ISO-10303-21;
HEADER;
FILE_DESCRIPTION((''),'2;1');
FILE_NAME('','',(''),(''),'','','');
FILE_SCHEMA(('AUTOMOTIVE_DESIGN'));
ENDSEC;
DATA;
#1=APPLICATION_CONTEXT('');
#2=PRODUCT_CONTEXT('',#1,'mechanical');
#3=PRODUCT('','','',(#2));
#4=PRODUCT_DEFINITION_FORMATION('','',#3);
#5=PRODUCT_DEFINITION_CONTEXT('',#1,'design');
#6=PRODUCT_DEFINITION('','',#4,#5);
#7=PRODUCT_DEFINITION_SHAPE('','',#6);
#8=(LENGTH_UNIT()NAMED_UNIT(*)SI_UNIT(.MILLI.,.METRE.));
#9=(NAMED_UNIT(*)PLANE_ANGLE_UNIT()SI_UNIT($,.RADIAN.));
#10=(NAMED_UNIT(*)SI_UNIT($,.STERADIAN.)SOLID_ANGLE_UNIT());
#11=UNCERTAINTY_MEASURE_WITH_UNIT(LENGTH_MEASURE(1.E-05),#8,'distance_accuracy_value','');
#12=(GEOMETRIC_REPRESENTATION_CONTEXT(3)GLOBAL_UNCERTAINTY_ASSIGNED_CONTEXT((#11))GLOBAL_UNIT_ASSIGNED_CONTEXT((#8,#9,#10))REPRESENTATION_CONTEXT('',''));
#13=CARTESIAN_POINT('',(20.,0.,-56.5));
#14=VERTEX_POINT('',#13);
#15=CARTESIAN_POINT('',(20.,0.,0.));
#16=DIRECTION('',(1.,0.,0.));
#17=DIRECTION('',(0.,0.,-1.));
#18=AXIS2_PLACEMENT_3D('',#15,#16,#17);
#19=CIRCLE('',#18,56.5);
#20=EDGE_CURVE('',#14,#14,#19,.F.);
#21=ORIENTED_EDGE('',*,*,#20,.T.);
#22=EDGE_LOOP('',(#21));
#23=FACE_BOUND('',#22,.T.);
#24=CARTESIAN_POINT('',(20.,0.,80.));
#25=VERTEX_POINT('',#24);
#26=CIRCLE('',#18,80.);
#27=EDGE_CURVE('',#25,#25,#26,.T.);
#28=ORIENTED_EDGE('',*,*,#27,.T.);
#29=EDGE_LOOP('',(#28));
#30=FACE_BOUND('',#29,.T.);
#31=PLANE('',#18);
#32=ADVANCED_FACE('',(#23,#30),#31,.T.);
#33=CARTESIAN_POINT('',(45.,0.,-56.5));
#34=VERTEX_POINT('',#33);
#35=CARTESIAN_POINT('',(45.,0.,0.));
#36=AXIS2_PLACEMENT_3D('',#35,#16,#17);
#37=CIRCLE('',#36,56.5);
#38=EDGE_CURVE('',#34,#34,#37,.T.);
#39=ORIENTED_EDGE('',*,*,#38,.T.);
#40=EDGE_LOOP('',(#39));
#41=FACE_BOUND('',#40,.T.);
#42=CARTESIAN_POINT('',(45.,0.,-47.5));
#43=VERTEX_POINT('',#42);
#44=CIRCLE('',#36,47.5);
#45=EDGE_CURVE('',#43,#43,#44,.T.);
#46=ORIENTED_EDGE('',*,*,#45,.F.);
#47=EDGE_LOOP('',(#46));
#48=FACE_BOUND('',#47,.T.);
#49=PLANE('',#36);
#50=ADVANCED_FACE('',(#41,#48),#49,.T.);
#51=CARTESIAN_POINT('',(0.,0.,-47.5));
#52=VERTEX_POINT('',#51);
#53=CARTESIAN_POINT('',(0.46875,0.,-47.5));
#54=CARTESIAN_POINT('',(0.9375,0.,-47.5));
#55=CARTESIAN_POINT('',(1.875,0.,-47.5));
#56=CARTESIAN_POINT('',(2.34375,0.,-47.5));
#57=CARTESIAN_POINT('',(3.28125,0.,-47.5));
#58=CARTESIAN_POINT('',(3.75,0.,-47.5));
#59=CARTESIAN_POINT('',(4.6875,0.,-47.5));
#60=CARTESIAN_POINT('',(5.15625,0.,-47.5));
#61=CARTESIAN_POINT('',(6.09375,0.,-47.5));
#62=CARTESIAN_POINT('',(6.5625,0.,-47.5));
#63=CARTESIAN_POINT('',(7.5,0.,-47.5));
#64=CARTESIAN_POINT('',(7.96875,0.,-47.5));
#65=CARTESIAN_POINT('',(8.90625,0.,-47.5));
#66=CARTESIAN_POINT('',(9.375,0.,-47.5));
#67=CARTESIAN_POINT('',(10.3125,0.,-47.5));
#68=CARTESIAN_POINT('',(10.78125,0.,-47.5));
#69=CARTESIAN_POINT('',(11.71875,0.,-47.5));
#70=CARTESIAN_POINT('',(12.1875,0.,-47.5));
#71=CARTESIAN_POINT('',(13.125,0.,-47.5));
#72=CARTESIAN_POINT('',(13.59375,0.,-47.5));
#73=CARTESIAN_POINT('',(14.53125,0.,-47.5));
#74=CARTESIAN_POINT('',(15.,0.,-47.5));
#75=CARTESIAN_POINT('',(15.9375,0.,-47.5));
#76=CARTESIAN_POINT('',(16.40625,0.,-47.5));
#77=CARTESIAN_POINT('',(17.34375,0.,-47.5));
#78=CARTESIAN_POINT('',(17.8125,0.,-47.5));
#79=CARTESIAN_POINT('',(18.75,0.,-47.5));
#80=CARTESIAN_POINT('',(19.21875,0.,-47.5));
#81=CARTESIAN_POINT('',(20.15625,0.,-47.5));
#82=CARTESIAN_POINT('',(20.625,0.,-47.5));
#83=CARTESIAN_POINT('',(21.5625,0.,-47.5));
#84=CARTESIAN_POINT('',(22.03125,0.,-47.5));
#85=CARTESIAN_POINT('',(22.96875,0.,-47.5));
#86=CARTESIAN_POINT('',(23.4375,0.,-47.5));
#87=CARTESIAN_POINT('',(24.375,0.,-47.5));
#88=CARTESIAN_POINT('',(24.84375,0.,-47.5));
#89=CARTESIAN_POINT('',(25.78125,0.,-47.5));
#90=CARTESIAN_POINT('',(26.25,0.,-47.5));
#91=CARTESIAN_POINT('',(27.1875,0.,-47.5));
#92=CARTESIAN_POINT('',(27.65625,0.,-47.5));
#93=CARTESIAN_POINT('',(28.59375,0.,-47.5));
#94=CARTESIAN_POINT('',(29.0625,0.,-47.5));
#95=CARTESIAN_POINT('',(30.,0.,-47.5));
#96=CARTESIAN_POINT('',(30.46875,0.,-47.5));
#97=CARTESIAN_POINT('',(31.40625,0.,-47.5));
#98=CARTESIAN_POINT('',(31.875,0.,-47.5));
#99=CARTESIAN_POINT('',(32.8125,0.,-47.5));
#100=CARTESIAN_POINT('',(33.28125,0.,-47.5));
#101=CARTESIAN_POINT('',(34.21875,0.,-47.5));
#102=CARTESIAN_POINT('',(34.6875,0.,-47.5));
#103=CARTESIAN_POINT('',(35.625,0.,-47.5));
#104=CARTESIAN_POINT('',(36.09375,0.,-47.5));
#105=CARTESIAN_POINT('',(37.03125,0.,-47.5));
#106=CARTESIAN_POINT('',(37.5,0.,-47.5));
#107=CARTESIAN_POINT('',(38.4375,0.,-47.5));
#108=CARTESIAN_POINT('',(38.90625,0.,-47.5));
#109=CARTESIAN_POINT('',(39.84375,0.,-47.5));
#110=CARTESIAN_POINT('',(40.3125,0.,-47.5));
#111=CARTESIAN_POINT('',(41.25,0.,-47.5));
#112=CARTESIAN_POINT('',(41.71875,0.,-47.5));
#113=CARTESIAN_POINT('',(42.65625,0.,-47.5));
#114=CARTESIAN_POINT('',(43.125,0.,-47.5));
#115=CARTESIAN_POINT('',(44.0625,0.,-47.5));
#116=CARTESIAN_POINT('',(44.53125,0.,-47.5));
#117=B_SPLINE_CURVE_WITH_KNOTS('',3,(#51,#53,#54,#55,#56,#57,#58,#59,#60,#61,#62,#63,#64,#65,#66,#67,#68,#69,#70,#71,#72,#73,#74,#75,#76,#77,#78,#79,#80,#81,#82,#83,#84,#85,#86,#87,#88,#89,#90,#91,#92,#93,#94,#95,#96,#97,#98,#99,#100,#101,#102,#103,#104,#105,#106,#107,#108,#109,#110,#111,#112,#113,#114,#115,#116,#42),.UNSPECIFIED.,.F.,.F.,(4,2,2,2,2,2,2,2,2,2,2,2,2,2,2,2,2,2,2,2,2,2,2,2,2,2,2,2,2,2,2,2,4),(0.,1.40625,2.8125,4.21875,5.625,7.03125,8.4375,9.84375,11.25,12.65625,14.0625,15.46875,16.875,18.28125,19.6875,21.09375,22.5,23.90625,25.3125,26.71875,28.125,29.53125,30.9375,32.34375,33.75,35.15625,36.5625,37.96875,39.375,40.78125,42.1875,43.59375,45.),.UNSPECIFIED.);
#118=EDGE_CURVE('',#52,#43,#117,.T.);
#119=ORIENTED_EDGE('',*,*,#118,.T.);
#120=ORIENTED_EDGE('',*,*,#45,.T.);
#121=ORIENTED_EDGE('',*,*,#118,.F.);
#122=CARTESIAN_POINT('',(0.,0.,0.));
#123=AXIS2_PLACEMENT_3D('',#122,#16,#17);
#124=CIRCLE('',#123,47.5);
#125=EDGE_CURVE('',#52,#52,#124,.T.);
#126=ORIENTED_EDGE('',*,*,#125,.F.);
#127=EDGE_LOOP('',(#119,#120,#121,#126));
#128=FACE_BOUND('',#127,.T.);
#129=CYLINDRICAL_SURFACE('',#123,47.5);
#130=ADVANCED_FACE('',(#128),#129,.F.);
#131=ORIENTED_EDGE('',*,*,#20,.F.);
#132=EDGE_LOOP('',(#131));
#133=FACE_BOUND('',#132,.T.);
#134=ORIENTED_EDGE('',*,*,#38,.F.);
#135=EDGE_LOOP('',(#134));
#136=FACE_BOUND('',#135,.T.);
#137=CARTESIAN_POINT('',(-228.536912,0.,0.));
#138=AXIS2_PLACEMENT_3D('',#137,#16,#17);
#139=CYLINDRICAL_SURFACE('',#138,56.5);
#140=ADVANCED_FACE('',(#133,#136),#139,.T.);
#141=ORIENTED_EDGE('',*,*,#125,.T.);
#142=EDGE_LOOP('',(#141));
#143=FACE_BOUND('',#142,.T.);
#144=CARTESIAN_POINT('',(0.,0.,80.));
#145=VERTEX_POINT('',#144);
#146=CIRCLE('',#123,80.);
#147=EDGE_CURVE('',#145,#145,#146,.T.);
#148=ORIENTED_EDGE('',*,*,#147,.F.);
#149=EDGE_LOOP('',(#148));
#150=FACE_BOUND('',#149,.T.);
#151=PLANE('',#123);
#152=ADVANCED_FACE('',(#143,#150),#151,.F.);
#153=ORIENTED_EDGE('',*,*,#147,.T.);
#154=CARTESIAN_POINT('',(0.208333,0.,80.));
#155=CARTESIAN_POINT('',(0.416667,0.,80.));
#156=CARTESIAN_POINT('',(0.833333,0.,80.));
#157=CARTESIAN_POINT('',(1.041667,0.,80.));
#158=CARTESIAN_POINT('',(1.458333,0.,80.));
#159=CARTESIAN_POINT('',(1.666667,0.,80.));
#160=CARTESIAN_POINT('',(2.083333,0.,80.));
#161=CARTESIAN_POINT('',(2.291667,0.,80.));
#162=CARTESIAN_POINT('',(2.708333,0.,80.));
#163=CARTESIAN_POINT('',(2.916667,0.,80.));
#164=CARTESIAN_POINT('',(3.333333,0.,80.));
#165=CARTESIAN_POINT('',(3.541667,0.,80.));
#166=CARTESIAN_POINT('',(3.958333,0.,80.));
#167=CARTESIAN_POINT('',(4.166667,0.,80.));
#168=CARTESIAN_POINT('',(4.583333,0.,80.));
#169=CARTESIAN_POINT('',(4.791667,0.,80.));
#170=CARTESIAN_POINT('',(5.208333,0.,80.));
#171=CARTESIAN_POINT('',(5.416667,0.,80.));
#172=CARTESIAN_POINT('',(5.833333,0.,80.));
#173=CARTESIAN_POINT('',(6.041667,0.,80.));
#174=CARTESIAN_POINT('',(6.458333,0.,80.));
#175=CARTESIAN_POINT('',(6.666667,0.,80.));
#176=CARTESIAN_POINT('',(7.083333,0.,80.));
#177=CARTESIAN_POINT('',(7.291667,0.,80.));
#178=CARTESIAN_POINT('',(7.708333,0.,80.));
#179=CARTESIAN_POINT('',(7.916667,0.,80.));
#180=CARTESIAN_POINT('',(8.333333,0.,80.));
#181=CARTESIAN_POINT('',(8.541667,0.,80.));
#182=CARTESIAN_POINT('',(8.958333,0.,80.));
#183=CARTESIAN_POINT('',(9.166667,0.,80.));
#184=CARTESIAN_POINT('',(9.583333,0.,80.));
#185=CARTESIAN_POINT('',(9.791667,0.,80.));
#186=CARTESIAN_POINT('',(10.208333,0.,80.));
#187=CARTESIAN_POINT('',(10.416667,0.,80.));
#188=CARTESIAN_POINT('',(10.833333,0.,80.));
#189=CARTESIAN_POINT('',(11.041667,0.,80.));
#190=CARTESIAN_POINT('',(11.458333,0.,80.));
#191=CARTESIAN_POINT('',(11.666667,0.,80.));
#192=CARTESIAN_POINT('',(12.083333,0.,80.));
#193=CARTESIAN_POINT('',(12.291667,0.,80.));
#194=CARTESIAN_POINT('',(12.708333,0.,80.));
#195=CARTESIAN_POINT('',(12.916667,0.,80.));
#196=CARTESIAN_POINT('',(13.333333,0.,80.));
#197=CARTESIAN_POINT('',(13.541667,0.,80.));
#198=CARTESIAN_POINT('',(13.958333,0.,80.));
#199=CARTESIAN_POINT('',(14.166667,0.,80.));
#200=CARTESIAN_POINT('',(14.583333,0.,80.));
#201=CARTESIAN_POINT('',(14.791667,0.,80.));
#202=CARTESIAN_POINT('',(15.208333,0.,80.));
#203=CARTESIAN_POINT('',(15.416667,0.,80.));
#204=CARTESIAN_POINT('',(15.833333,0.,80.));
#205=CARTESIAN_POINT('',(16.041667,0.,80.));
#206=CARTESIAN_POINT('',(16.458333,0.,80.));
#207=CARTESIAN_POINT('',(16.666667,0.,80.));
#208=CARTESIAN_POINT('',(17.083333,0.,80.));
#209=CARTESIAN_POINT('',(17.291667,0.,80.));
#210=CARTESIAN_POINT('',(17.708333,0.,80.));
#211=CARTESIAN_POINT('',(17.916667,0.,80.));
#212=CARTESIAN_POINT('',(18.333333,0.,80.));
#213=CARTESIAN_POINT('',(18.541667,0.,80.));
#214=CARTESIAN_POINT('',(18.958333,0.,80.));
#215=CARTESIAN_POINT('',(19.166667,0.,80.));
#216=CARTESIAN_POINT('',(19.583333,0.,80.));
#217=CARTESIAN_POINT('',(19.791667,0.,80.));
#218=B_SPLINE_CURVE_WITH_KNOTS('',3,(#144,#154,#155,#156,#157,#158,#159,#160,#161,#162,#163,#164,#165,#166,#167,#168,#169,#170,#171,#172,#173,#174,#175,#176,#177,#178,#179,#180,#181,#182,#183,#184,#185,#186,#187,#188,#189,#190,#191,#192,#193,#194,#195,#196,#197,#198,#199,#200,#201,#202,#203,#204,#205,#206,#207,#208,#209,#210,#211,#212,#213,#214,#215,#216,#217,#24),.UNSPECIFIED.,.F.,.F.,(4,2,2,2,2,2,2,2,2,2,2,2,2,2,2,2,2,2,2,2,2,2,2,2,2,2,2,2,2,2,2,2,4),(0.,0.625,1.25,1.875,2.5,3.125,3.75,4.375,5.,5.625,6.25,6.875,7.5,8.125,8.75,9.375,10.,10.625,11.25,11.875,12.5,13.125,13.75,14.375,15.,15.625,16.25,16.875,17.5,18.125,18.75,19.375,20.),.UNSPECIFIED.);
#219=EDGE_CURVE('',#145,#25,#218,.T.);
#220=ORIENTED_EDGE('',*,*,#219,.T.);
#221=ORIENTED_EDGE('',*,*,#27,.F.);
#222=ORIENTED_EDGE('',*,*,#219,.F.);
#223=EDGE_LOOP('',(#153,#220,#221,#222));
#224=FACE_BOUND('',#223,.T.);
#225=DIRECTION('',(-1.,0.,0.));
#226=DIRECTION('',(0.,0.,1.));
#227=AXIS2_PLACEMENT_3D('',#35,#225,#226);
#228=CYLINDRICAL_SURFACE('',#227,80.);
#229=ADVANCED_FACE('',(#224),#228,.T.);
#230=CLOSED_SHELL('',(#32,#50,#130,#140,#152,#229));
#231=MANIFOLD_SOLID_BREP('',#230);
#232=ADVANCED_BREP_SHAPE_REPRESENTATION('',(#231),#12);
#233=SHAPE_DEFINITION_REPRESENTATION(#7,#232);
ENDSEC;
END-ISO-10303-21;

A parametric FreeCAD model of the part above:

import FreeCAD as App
import Part
import Sketcher
Q = App.Units.Quantity


def add_polygon(sketch, points):
    """Adds a closed chain of lines whose ends are joined by coincident constraints."""
    first, n = sketch.GeometryCount, len(points)
    for a, b in zip(points, points[1:] + points[:1]):
        sketch.addGeometry(Part.LineSegment(App.Vector(*a, 0), App.Vector(*b, 0)), False)
    for i in range(n):
        sketch.addConstraint(Sketcher.Constraint("Coincident", first + i, 2, first + (i + 1) % n, 1))

doc = App.newDocument("Part")
body = doc.addObject("PartDesign::Body", "Body")

# Sketch on YZ plane
sketch1 = body.newObject("Sketcher::SketchObject", "Sketch")
sketch1.AttachmentSupport = (doc.getObject("YZ_Plane"), [""])
sketch1.MapMode = "FlatFace"
sketch1.addGeometry(Part.Circle(App.Vector(0, 0, 0), App.Vector(0, 0, 1), 80), False)
sketch1.addConstraint(Sketcher.Constraint("Coincident", 0, 3, -1, 1))
sketch1.addConstraint(Sketcher.Constraint("Diameter", 0, Q("160 mm")))
pad1 = body.newObject("PartDesign::Pad", "Pad")
pad1.Profile = sketch1
pad1.Length = 45

# Sketch on YZ plane
sketch2 = body.newObject("Sketcher::SketchObject", "Sketch001")
sketch2.AttachmentSupport = (doc.getObject("YZ_Plane"), [""])
sketch2.MapMode = "FlatFace"
sketch2.AttachmentOffset = App.Placement(App.Vector(0, 0, 45), App.Rotation())
sketch2.addGeometry(Part.Circle(App.Vector(0, 0, 0), App.Vector(0, 0, 1), 48), False)
sketch2.addConstraint(Sketcher.Constraint("Coincident", 0, 3, -1, 1))
sketch2.addConstraint(Sketcher.Constraint("Diameter", 0, Q("95 mm")))
pocket1 = body.newObject("PartDesign::Pocket", "Pocket")
pocket1.Profile = sketch2
pocket1.Type = "ThroughAll"

# Sketch on YZ plane
sketch3 = body.newObject("Sketcher::SketchObject", "Sketch002")
sketch3.AttachmentSupport = (doc.getObject("YZ_Plane"), [""])
sketch3.MapMode = "FlatFace"
sketch3.AttachmentOffset = App.Placement(App.Vector(0, 0, 45), App.Rotation())
add_polygon(sketch3, [(104, 104), (-104, 104), (-104, -104), (104, -104)])  # lines 0-3
sketch3.addGeometry(Part.Circle(App.Vector(0, 0, 0), App.Vector(0, 0, 1), 56), False)  # 4
sketch3.addConstraint(Sketcher.Constraint("Horizontal", 0))
sketch3.addConstraint(Sketcher.Constraint("Vertical", 1))
sketch3.addConstraint(Sketcher.Constraint("Horizontal", 2))
sketch3.addConstraint(Sketcher.Constraint("Vertical", 3))
sketch3.addConstraint(Sketcher.Constraint("Coincident", 4, 3, -1, 1))
sketch3.addConstraint(Sketcher.Constraint("Symmetric", 0, 2, 2, 2, -1, 1))
sketch3.addConstraint(Sketcher.Constraint("Equal", 2, 1))
sketch3.addConstraint(Sketcher.Constraint("Diameter", 4, Q("113 mm")))
sketch3.addConstraint(Sketcher.Constraint("DistanceX", 0, 2, 0, 1, Q("208.142 mm")))
pocket2 = body.newObject("PartDesign::Pocket", "Pocket001")
pocket2.Profile = sketch3
pocket2.Length = 25

doc.recompute()
